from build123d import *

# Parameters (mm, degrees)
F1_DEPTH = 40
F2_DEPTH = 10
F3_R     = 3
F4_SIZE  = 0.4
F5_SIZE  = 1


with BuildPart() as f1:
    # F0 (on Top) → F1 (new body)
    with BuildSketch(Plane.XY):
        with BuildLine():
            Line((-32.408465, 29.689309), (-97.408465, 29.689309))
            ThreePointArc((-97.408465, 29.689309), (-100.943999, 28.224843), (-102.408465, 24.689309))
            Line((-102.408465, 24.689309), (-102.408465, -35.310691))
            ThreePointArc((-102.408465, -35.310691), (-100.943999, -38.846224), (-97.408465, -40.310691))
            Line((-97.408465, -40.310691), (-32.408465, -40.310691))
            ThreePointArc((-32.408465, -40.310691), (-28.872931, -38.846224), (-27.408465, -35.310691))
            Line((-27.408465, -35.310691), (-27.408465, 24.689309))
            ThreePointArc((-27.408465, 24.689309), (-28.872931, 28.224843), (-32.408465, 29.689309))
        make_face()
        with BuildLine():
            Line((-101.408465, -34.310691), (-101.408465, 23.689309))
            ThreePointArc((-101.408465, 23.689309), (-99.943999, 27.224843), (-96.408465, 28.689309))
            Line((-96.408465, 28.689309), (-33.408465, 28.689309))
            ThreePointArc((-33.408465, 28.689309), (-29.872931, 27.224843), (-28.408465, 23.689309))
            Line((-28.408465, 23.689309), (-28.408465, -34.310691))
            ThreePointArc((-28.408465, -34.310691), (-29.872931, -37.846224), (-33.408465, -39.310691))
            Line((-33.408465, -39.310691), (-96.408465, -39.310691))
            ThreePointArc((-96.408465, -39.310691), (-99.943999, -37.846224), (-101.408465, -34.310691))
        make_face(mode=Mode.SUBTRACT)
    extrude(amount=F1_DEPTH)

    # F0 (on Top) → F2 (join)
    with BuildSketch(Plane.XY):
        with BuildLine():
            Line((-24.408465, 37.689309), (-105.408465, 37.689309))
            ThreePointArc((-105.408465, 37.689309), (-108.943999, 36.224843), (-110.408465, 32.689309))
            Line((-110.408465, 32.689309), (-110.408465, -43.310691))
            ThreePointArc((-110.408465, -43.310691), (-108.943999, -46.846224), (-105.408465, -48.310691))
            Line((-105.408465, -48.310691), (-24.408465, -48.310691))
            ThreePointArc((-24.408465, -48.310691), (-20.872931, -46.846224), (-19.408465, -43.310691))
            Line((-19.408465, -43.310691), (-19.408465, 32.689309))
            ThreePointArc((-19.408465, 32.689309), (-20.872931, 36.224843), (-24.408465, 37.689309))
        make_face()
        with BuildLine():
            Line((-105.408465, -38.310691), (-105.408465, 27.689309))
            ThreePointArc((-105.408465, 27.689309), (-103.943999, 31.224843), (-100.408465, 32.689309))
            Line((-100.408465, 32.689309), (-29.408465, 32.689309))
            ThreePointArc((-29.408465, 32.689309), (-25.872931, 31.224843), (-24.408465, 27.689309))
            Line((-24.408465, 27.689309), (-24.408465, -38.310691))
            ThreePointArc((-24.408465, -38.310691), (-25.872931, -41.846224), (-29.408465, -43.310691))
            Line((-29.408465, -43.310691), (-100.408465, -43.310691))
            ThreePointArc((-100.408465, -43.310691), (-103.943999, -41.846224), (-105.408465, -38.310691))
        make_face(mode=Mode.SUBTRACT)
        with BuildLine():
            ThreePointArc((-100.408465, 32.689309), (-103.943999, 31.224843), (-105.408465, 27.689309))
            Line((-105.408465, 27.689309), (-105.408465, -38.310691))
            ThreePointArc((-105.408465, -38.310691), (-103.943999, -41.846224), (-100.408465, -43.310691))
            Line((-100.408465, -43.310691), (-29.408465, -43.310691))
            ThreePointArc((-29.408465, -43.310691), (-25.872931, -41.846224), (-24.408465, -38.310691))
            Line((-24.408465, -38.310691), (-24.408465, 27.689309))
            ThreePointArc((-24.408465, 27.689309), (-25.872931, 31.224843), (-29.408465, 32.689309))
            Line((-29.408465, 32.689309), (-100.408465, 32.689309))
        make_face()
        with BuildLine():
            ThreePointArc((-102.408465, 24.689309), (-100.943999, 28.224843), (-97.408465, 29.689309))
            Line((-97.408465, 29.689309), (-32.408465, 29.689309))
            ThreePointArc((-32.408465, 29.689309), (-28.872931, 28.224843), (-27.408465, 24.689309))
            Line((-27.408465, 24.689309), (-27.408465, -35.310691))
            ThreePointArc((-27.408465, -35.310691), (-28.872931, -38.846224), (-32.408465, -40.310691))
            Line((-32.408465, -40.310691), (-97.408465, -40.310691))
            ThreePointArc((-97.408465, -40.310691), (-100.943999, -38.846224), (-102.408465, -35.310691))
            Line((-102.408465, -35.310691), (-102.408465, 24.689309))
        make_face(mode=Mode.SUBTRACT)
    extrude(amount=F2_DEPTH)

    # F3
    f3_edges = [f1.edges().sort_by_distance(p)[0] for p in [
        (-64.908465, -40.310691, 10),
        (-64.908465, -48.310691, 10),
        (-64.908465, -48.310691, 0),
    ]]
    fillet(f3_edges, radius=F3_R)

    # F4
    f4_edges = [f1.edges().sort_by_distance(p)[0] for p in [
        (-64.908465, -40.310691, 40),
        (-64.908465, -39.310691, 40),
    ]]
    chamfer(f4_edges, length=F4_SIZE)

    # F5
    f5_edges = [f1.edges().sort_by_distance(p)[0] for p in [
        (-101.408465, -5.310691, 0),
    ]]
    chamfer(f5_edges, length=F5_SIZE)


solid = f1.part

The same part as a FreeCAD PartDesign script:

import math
import FreeCAD as App
import Part
import Sketcher
from FreeCAD import Vector
Q = App.Units.Quantity


def edges_at(feature, points):
    """Names of the edges that pass closest to the given points."""
    edges = feature.Shape.Edges
    near = lambda p: min(range(len(edges)), key=lambda i: edges[i].distToShape(Part.Vertex(*p))[0])
    return sorted({f"Edge{near(p) + 1}" for p in points})

doc = App.newDocument("Part")
body = doc.addObject("PartDesign::Body", "Body")

sketch1 = body.newObject("Sketcher::SketchObject", "Sketch")
sketch1.AttachmentSupport = (doc.getObject("XY_Plane"), [""])
sketch1.MapMode = "FlatFace"
sketch1.addGeometry(Part.LineSegment(Vector(-32.4, 29.7, 0), Vector(-97.4, 29.7, 0)), False)
sketch1.addGeometry(Part.ArcOfCircle(Part.Circle(Vector(-97.4, 24.7, 0), Vector(0, 0, 1), 5), math.radians(90), math.radians(180)), False)
sketch1.addGeometry(Part.LineSegment(Vector(-102.4, 24.7, 0), Vector(-102.4, -35.3, 0)), False)
sketch1.addGeometry(Part.ArcOfCircle(Part.Circle(Vector(-97.4, -35.3, 0), Vector(0, 0, 1), 5), math.radians(-180), math.radians(-90)), False)
sketch1.addGeometry(Part.LineSegment(Vector(-97.4, -40.3, 0), Vector(-32.4, -40.3, 0)), False)
sketch1.addGeometry(Part.ArcOfCircle(Part.Circle(Vector(-32.4, -35.3, 0), Vector(0, 0, 1), 5), math.radians(-90), math.radians(0)), False)
sketch1.addGeometry(Part.LineSegment(Vector(-27.4, -35.3, 0), Vector(-27.4, 24.7, 0)), False)
sketch1.addGeometry(Part.ArcOfCircle(Part.Circle(Vector(-32.4, 24.7, 0), Vector(0, 0, 1), 5), math.radians(0), math.radians(90)), False)
sketch1.addGeometry(Part.ArcOfCircle(Part.Circle(Vector(-96.4, -34.3, 0), Vector(0, 0, 1), 5), math.radians(-180), math.radians(-90)), False)
sketch1.addGeometry(Part.LineSegment(Vector(-101.4, -34.3, 0), Vector(-101.4, 23.7, 0)), False)
sketch1.addGeometry(Part.ArcOfCircle(Part.Circle(Vector(-96.4, 23.7, 0), Vector(0, 0, 1), 5), math.radians(90), math.radians(180)), False)
sketch1.addGeometry(Part.LineSegment(Vector(-96.4, 28.7, 0), Vector(-33.4, 28.7, 0)), False)
sketch1.addGeometry(Part.ArcOfCircle(Part.Circle(Vector(-33.4, 23.7, 0), Vector(0, 0, 1), 5), math.radians(0), math.radians(90)), False)
sketch1.addGeometry(Part.LineSegment(Vector(-28.4, 23.7, 0), Vector(-28.4, -34.3, 0)), False)
sketch1.addGeometry(Part.ArcOfCircle(Part.Circle(Vector(-33.4, -34.3, 0), Vector(0, 0, 1), 5), math.radians(-90), math.radians(0)), False)
sketch1.addGeometry(Part.LineSegment(Vector(-33.4, -39.3, 0), Vector(-96.4, -39.3, 0)), False)
sketch1.addConstraint(Sketcher.Constraint("Tangent", 0, 2, 1, 1))
sketch1.addConstraint(Sketcher.Constraint("Tangent", 1, 2, 2, 1))
sketch1.addConstraint(Sketcher.Constraint("Tangent", 2, 2, 3, 1))
sketch1.addConstraint(Sketcher.Constraint("Tangent", 3, 2, 4, 1))
sketch1.addConstraint(Sketcher.Constraint("Tangent", 4, 2, 5, 1))
sketch1.addConstraint(Sketcher.Constraint("Tangent", 5, 2, 6, 1))
sketch1.addConstraint(Sketcher.Constraint("Tangent", 6, 2, 7, 1))
sketch1.addConstraint(Sketcher.Constraint("Tangent", 7, 2, 0, 1))
sketch1.addConstraint(Sketcher.Constraint("Tangent", 8, 1, 9, 1))
sketch1.addConstraint(Sketcher.Constraint("Tangent", 9, 2, 10, 2))
sketch1.addConstraint(Sketcher.Constraint("Tangent", 10, 1, 11, 1))
sketch1.addConstraint(Sketcher.Constraint("Tangent", 11, 2, 12, 2))
sketch1.addConstraint(Sketcher.Constraint("Tangent", 12, 1, 13, 1))
sketch1.addConstraint(Sketcher.Constraint("Tangent", 13, 2, 14, 2))
sketch1.addConstraint(Sketcher.Constraint("Tangent", 14, 1, 15, 1))
sketch1.addConstraint(Sketcher.Constraint("Tangent", 15, 2, 8, 2))
sketch1.addConstraint(Sketcher.Constraint("Horizontal", 0))
sketch1.addConstraint(Sketcher.Constraint("Vertical", 2))
sketch1.addConstraint(Sketcher.Constraint("Horizontal", 4))
sketch1.addConstraint(Sketcher.Constraint("Vertical", 6))
sketch1.addConstraint(Sketcher.Constraint("Vertical", 9))
sketch1.addConstraint(Sketcher.Constraint("Horizontal", 11))
sketch1.addConstraint(Sketcher.Constraint("Vertical", 13))
sketch1.addConstraint(Sketcher.Constraint("Horizontal", 15))
sketch1.addConstraint(Sketcher.Constraint("Equal", 1, 3))
sketch1.addConstraint(Sketcher.Constraint("Equal", 3, 5))
sketch1.addConstraint(Sketcher.Constraint("Equal", 5, 7))
sketch1.addConstraint(Sketcher.Constraint("Equal", 7, 8))
sketch1.addConstraint(Sketcher.Constraint("Equal", 8, 10))
sketch1.addConstraint(Sketcher.Constraint("Equal", 10, 12))
sketch1.addConstraint(Sketcher.Constraint("Equal", 12, 14))
sketch1.addConstraint(Sketcher.Constraint("Radius", 1, Q("5 mm")))
sketch1.addConstraint(Sketcher.Constraint("DistanceX", 0, 2, 0, 1, Q("65 mm")))
sketch1.addConstraint(Sketcher.Constraint("DistanceX", 11, 1, 11, 2, Q("63 mm")))
sketch1.addConstraint(Sketcher.Constraint("DistanceY", 2, 2, 2, 1, Q("60 mm")))
sketch1.addConstraint(Sketcher.Constraint("DistanceY", 9, 1, 9, 2, Q("58 mm")))
sketch1.addConstraint(Sketcher.Constraint("DistanceX", 3, 3, 8, 3, Q("1 mm")))
sketch1.addConstraint(Sketcher.Constraint("DistanceY", 3, 3, 8, 3, Q("1 mm")))
sketch1.addConstraint(Sketcher.Constraint("DistanceY", -1, 1, 1, 3, Q("24.689309 mm")))
sketch1.addConstraint(Sketcher.Constraint("DistanceX", 1, 3, -1, 1, Q("97.408465 mm")))
pad1 = body.newObject("PartDesign::Pad", "Pad")
pad1.Profile = sketch1
pad1.Length = 40

sketch2 = body.newObject("Sketcher::SketchObject", "Sketch001")
sketch2.AttachmentSupport = (doc.getObject("XY_Plane"), [""])
sketch2.MapMode = "FlatFace"
sketch2.addGeometry(Part.LineSegment(Vector(-24.4, 37.7, 0), Vector(-105.4, 37.7, 0)), False)
sketch2.addGeometry(Part.ArcOfCircle(Part.Circle(Vector(-105.4, 32.7, 0), Vector(0, 0, 1), 5), math.radians(90), math.radians(180)), False)
sketch2.addGeometry(Part.LineSegment(Vector(-110.4, 32.7, 0), Vector(-110.4, -43.3, 0)), False)
sketch2.addGeometry(Part.ArcOfCircle(Part.Circle(Vector(-105.4, -43.3, 0), Vector(0, 0, 1), 5), math.radians(-180), math.radians(-90)), False)
sketch2.addGeometry(Part.LineSegment(Vector(-105.4, -48.3, 0), Vector(-24.4, -48.3, 0)), False)
sketch2.addGeometry(Part.ArcOfCircle(Part.Circle(Vector(-24.4, -43.3, 0), Vector(0, 0, 1), 5), math.radians(-90), math.radians(0)), False)
sketch2.addGeometry(Part.LineSegment(Vector(-19.4, -43.3, 0), Vector(-19.4, 32.7, 0)), False)
sketch2.addGeometry(Part.ArcOfCircle(Part.Circle(Vector(-24.4, 32.7, 0), Vector(0, 0, 1), 5), math.radians(0), math.radians(90)), False)
sketch2.addGeometry(Part.LineSegment(Vector(-102.4, -35.3, 0), Vector(-102.4, 24.7, 0)), False)
sketch2.addGeometry(Part.ArcOfCircle(Part.Circle(Vector(-97.4, 24.7, 0), Vector(0, 0, 1), 5), math.radians(90), math.radians(180)), False)
sketch2.addGeometry(Part.LineSegment(Vector(-97.4, 29.7, 0), Vector(-32.4, 29.7, 0)), False)
sketch2.addGeometry(Part.ArcOfCircle(Part.Circle(Vector(-32.4, 24.7, 0), Vector(0, 0, 1), 5), math.radians(0), math.radians(90)), False)
sketch2.addGeometry(Part.LineSegment(Vector(-27.4, 24.7, 0), Vector(-27.4, -35.3, 0)), False)
sketch2.addGeometry(Part.ArcOfCircle(Part.Circle(Vector(-32.4, -35.3, 0), Vector(0, 0, 1), 5), math.radians(-90), math.radians(0)), False)
sketch2.addGeometry(Part.LineSegment(Vector(-32.4, -40.3, 0), Vector(-97.4, -40.3, 0)), False)
sketch2.addGeometry(Part.ArcOfCircle(Part.Circle(Vector(-97.4, -35.3, 0), Vector(0, 0, 1), 5), math.radians(-180), math.radians(-90)), False)
sketch2.addConstraint(Sketcher.Constraint("Tangent", 0, 2, 1, 1))
sketch2.addConstraint(Sketcher.Constraint("Tangent", 1, 2, 2, 1))
sketch2.addConstraint(Sketcher.Constraint("Tangent", 2, 2, 3, 1))
sketch2.addConstraint(Sketcher.Constraint("Tangent", 3, 2, 4, 1))
sketch2.addConstraint(Sketcher.Constraint("Tangent", 4, 2, 5, 1))
sketch2.addConstraint(Sketcher.Constraint("Tangent", 5, 2, 6, 1))
sketch2.addConstraint(Sketcher.Constraint("Tangent", 6, 2, 7, 1))
sketch2.addConstraint(Sketcher.Constraint("Tangent", 7, 2, 0, 1))
sketch2.addConstraint(Sketcher.Constraint("Tangent", 8, 2, 9, 2))
sketch2.addConstraint(Sketcher.Constraint("Tangent", 9, 1, 10, 1))
sketch2.addConstraint(Sketcher.Constraint("Tangent", 10, 2, 11, 2))
sketch2.addConstraint(Sketcher.Constraint("Tangent", 11, 1, 12, 1))
sketch2.addConstraint(Sketcher.Constraint("Tangent", 12, 2, 13, 2))
sketch2.addConstraint(Sketcher.Constraint("Tangent", 13, 1, 14, 1))
sketch2.addConstraint(Sketcher.Constraint("Tangent", 14, 2, 15, 2))
sketch2.addConstraint(Sketcher.Constraint("Tangent", 15, 1, 8, 1))
sketch2.addConstraint(Sketcher.Constraint("Horizontal", 0))
sketch2.addConstraint(Sketcher.Constraint("Vertical", 2))
sketch2.addConstraint(Sketcher.Constraint("Horizontal", 4))
sketch2.addConstraint(Sketcher.Constraint("Vertical", 6))
sketch2.addConstraint(Sketcher.Constraint("Vertical", 8))
sketch2.addConstraint(Sketcher.Constraint("Horizontal", 10))
sketch2.addConstraint(Sketcher.Constraint("Vertical", 12))
sketch2.addConstraint(Sketcher.Constraint("Horizontal", 14))
sketch2.addConstraint(Sketcher.Constraint("Equal", 1, 3))
sketch2.addConstraint(Sketcher.Constraint("Equal", 3, 5))
sketch2.addConstraint(Sketcher.Constraint("Equal", 5, 7))
sketch2.addConstraint(Sketcher.Constraint("Equal", 7, 9))
sketch2.addConstraint(Sketcher.Constraint("Equal", 9, 11))
sketch2.addConstraint(Sketcher.Constraint("Equal", 11, 13))
sketch2.addConstraint(Sketcher.Constraint("Equal", 13, 15))
sketch2.addConstraint(Sketcher.Constraint("Radius", 1, Q("5 mm")))
sketch2.addConstraint(Sketcher.Constraint("DistanceX", 0, 2, 0, 1, Q("81 mm")))
sketch2.addConstraint(Sketcher.Constraint("DistanceX", 10, 1, 10, 2, Q("65 mm")))
sketch2.addConstraint(Sketcher.Constraint("DistanceY", 2, 2, 2, 1, Q("76 mm")))
sketch2.addConstraint(Sketcher.Constraint("DistanceY", 8, 1, 8, 2, Q("60 mm")))
sketch2.addConstraint(Sketcher.Constraint("DistanceX", 1, 3, 9, 3, Q("8 mm")))
sketch2.addConstraint(Sketcher.Constraint("DistanceY", 9, 3, 1, 3, Q("8 mm")))
sketch2.addConstraint(Sketcher.Constraint("DistanceY", -1, 1, 1, 3, Q("32.689309 mm")))
sketch2.addConstraint(Sketcher.Constraint("DistanceX", 1, 3, -1, 1, Q("105.408465 mm")))
pad2 = body.newObject("PartDesign::Pad", "Pad001")
pad2.Profile = sketch2
pad2.Length = 10
doc.recompute()

fillet = body.newObject("PartDesign::Fillet", "Fillet")
fillet.Base = (pad2, edges_at(pad2, [(-64.908, -40.311, 10), (-64.908, -48.311, 10), (-64.908, -48.311, 0)]))
fillet.Radius = 3
doc.recompute()

chamfer = body.newObject("PartDesign::Chamfer", "Chamfer")
chamfer.Base = (fillet, edges_at(fillet, [(-64.908, -40.311, 40), (-64.908, -39.311, 40)]))
chamfer.Size = 0.4
doc.recompute()

chamfer2 = body.newObject("PartDesign::Chamfer", "Chamfer001")
chamfer2.Base = (chamfer, edges_at(chamfer, [(-101.408, -5.311, 0)]))
chamfer2.Size = 1

doc.recompute()
